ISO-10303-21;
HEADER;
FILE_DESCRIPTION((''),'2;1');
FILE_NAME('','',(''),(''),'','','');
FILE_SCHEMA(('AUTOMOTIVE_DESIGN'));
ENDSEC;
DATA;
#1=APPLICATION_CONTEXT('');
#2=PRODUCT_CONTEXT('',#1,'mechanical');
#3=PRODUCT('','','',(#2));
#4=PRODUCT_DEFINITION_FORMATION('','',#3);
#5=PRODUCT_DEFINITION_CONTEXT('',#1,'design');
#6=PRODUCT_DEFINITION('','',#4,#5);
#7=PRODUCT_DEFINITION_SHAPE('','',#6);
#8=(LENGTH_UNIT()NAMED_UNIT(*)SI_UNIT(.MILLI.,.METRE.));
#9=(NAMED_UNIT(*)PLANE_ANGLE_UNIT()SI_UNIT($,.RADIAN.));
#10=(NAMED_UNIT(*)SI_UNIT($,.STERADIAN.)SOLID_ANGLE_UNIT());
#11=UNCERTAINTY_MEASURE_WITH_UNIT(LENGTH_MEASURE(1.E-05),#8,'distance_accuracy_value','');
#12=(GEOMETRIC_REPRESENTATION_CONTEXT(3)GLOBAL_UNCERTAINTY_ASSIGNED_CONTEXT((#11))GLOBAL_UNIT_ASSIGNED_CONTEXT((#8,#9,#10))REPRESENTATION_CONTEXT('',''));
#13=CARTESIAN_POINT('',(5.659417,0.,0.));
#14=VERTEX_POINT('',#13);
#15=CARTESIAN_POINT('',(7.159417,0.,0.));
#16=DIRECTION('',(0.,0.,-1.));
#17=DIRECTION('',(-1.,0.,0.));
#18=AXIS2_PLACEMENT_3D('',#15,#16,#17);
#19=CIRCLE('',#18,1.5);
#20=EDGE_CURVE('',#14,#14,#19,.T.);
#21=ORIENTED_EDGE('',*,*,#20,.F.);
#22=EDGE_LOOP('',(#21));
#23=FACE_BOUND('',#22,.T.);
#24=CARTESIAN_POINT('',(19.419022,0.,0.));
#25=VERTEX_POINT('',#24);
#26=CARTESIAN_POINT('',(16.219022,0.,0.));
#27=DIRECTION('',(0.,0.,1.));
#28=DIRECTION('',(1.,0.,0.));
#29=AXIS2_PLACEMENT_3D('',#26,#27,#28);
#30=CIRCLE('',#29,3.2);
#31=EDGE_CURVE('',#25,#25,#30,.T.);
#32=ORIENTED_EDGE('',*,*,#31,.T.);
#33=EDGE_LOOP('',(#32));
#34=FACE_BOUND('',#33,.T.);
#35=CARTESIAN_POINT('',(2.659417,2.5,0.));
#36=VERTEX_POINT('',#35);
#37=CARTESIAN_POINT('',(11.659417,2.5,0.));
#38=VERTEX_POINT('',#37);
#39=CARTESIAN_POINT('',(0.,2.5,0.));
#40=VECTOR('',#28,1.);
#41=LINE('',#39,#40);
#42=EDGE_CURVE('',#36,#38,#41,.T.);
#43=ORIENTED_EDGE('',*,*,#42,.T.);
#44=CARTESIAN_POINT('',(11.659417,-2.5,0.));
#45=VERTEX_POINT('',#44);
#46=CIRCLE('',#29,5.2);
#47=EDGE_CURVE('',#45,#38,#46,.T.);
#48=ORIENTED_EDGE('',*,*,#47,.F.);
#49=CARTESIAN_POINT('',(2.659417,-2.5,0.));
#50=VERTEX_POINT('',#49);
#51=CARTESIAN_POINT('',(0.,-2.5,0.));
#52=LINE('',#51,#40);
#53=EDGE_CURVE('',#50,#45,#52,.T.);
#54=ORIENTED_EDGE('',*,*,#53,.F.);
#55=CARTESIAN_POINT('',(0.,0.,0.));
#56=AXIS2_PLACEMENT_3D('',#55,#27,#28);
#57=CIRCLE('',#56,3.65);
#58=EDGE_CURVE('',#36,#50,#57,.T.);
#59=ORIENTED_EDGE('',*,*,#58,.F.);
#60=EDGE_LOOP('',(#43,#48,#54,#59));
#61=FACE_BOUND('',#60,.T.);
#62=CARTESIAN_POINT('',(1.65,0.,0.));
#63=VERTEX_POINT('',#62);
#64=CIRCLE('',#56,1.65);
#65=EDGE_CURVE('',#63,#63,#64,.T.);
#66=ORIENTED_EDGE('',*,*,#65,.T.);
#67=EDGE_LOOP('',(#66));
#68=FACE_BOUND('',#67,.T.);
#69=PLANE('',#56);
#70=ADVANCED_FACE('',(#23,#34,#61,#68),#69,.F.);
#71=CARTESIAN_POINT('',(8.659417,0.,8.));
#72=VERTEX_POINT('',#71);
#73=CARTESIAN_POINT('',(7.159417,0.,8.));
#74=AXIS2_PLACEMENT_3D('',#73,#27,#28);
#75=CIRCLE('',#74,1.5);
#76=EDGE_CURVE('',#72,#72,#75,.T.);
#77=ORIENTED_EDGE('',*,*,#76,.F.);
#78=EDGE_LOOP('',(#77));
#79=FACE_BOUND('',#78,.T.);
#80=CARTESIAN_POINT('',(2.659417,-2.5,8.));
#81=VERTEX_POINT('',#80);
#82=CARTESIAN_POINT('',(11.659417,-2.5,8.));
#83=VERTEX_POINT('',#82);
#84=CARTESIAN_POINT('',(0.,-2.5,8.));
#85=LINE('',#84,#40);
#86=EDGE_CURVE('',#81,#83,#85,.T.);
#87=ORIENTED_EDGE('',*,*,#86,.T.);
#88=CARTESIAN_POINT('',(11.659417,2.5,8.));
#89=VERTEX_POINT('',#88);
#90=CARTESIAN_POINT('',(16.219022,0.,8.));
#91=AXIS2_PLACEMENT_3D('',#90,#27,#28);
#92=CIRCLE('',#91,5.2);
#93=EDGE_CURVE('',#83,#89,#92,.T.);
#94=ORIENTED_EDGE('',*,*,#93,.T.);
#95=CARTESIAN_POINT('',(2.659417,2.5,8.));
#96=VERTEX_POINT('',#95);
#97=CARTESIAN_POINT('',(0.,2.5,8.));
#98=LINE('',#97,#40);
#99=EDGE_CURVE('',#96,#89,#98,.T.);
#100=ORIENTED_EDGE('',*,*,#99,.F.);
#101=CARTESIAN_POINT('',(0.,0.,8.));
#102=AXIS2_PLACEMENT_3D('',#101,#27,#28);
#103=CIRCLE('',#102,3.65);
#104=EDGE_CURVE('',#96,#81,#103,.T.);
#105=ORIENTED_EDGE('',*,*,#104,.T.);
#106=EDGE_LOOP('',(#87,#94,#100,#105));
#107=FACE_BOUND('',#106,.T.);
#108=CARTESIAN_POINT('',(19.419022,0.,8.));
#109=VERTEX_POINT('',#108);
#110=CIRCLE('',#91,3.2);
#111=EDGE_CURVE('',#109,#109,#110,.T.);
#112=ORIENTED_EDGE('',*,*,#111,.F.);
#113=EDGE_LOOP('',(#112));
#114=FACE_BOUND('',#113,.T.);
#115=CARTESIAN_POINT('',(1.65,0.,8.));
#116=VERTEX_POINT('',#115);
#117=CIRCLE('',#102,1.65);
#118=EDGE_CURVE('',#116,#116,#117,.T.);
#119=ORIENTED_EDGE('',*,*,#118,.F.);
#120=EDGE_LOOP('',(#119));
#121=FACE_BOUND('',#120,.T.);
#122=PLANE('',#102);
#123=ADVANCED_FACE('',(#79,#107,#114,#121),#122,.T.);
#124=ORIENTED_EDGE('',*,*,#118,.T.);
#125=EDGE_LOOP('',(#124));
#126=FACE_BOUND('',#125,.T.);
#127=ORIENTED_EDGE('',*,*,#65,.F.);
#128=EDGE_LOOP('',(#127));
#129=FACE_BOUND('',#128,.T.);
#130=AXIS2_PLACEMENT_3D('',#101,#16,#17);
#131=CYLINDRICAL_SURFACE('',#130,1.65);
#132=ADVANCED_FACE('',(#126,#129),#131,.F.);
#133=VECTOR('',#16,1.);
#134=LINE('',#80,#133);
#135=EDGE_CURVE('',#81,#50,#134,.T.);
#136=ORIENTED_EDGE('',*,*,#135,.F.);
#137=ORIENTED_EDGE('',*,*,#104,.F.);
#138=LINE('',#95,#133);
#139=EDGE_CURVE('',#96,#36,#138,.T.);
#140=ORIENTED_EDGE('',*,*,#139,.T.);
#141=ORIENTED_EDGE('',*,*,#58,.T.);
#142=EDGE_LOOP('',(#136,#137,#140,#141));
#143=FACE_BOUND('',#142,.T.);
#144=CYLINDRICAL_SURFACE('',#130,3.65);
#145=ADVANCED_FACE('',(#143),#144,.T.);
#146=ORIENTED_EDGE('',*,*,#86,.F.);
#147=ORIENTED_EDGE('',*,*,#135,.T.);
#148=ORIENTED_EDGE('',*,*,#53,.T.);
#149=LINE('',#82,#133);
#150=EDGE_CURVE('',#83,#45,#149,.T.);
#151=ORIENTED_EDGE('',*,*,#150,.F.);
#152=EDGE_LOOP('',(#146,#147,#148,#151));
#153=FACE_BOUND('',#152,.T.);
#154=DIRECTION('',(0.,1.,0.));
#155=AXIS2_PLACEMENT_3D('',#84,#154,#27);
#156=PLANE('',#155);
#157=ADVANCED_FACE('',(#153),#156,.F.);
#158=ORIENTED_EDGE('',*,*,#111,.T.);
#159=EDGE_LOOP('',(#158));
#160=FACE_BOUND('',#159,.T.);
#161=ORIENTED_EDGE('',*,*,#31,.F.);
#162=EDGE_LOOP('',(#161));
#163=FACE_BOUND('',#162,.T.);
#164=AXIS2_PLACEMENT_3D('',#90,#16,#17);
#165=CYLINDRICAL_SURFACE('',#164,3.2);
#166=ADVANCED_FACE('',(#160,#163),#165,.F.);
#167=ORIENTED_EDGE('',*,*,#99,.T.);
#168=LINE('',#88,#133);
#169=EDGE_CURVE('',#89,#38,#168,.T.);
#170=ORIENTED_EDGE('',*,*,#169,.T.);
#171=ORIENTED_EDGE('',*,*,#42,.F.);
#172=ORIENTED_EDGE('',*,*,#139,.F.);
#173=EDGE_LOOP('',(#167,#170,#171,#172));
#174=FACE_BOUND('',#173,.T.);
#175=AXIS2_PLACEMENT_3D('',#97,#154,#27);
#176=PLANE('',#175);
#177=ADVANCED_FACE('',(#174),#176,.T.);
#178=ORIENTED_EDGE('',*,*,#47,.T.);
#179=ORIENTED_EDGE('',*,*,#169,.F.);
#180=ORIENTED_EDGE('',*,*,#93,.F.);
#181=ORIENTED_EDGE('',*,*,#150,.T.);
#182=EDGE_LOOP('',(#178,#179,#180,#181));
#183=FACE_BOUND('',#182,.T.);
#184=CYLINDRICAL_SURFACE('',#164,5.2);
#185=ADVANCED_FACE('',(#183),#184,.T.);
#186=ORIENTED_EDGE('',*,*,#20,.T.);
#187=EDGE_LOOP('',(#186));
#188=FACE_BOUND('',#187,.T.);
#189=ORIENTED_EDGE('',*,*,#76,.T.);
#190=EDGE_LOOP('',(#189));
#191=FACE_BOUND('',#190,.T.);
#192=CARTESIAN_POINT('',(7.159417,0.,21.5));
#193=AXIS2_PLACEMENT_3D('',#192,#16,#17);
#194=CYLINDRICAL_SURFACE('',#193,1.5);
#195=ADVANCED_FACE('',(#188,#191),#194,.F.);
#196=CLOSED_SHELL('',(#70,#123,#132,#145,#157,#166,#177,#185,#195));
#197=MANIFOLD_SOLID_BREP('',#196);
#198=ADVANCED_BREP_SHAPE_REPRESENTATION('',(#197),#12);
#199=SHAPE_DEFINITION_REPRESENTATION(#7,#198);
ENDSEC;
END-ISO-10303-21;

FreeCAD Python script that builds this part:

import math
import FreeCAD as App
import Part
import Sketcher

V = App.Vector
Q = App.Units.Quantity

doc = App.newDocument("Part")
body = doc.addObject("PartDesign::Body", "Body")

# Sketch on XY plane
sketch1 = body.newObject("Sketcher::SketchObject", "Sketch")
sketch1.AttachmentSupport = (doc.getObject("XY_Plane"), [""])
sketch1.MapMode = "FlatFace"
sketch1.addGeometry([
    Part.LineSegment(V(11.7, 2.5, 0), V(2.7, 2.5, 0)),  # 0
    Part.ArcOfCircle(Part.Circle(V(0, 0, 0), V(0, 0, 1), 3.6), math.radians(43), math.radians(317)),  # 1
    Part.LineSegment(V(2.7, -2.5, 0), V(11.7, -2.5, 0)),  # 2
    Part.ArcOfCircle(Part.Circle(V(16.2, 0, 0), V(0, 0, 1), 5.2), math.radians(-151), math.radians(151)),  # 3
    Part.Circle(V(0, 0, 0), V(0, 0, 1), 1.6),  # 4
    Part.Circle(V(16.2, 0, 0), V(0, 0, 1), 3.2),  # 5
], False)
sketch1.addConstraint([
    Sketcher.Constraint("Coincident", 0, 2, 1, 1),
    Sketcher.Constraint("Coincident", 1, 2, 2, 1),
    Sketcher.Constraint("Coincident", 2, 2, 3, 1),
    Sketcher.Constraint("Coincident", 3, 2, 0, 1),
    Sketcher.Constraint("Horizontal", 0),
    Sketcher.Constraint("Horizontal", 2),
    Sketcher.Constraint("Coincident", 1, 3, -1, 1),
    Sketcher.Constraint("Coincident", 4, 3, -1, 1),
    Sketcher.Constraint("Coincident", 5, 3, 3, 3),
    Sketcher.Constraint("Symmetric", 2, 2, 3, 2, -1),
    Sketcher.Constraint("Diameter", 4, Q("3.3 mm")),
    Sketcher.Constraint("Diameter", 5, Q("6.4 mm")),
    Sketcher.Constraint("Radius", 3, Q("5.2 mm")),
    Sketcher.Constraint("DistanceX", 0, 2, 0, 1, Q("9 mm")),
    Sketcher.Constraint("Radius", 1, Q("3.65 mm")),
    Sketcher.Constraint("DistanceY", 1, 2, 0, 2, Q("5 mm")),
])
pad1 = body.newObject("PartDesign::Pad", "Pad")
pad1.Profile = sketch1
pad1.Length = 8

# Sketch on XY plane
sketch2 = body.newObject("Sketcher::SketchObject", "Sketch001")
sketch2.AttachmentSupport = (doc.getObject("XY_Plane"), [""])
sketch2.MapMode = "FlatFace"
sketch2.addGeometry(Part.Circle(V(7.2, 0, 0), V(0, 0, 1), 1.5), False)
sketch2.addConstraint([
    Sketcher.Constraint("PointOnObject", 0, 3, -1),
    Sketcher.Constraint("Diameter", 0, Q("3 mm")),
    Sketcher.Constraint("DistanceX", -1, 1, 0, 3, Q("7.159417 mm")),
])
pocket1 = body.newObject("PartDesign::Pocket", "Pocket")
pocket1.Profile = sketch2
pocket1.Length = 21.5
pocket1.Reversed = True

doc.recompute()
